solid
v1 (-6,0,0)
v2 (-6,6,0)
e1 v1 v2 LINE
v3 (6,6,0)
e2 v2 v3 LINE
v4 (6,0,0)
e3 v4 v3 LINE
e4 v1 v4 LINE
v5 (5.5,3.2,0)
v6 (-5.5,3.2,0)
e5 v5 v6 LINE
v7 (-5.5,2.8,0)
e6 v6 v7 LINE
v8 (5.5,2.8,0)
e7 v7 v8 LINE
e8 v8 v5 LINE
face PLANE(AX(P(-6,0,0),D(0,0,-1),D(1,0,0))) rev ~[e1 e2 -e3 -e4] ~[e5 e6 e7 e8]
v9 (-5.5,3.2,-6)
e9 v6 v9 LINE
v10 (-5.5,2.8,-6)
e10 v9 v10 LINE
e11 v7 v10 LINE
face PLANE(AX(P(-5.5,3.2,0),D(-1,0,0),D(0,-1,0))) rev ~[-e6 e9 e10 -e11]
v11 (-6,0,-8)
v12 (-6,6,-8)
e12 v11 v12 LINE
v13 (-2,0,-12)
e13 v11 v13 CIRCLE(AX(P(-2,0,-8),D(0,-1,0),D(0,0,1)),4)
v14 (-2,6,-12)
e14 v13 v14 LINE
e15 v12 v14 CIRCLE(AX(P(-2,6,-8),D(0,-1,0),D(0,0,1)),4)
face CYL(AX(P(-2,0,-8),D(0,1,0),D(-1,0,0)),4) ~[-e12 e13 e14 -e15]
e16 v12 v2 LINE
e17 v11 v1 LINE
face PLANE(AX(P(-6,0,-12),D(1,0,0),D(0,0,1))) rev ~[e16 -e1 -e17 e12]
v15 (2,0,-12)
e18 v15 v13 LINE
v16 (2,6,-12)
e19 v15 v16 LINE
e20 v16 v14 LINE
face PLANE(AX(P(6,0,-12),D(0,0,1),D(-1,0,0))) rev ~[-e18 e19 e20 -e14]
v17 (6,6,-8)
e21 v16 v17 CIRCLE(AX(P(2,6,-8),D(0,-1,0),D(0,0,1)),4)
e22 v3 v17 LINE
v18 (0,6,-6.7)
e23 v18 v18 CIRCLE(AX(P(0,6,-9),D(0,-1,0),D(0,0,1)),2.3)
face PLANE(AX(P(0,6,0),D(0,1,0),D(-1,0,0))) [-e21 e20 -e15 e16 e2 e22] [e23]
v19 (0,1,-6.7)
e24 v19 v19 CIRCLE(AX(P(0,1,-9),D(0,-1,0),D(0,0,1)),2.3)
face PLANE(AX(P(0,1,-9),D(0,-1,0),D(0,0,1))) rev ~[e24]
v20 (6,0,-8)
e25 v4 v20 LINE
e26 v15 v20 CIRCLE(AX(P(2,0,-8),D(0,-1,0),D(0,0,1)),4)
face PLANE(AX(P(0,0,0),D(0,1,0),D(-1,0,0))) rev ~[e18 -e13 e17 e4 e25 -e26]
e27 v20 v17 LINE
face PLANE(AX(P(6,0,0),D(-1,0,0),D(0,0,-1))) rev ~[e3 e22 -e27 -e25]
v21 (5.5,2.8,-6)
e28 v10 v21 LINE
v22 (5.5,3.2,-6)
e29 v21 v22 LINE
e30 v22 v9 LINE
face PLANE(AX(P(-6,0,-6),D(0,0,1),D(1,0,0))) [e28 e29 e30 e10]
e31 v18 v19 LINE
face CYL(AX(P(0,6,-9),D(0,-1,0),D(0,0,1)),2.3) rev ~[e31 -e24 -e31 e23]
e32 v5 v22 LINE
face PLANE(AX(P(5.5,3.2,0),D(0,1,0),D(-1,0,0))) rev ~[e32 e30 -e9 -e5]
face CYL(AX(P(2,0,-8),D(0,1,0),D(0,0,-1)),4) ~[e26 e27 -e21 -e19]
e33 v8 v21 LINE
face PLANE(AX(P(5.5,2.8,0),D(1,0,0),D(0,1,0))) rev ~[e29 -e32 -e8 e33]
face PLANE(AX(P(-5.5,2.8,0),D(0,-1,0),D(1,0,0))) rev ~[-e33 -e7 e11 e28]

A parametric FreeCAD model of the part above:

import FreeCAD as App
import Part
import Sketcher

V = App.Vector
Q = App.Units.Quantity


def edges_at(feature, points):
    """Names of the edges that pass closest to the given points."""
    edges = feature.Shape.Edges
    near = lambda p: min(range(len(edges)), key=lambda i: edges[i].distToShape(Part.Vertex(*p))[0])
    return sorted({f"Edge{near(p) + 1}" for p in points})

doc = App.newDocument("Part")
body = doc.addObject("PartDesign::Body", "Body")

# Sketch on XZ plane
sketch1 = doc.addObject("Sketcher::SketchObject", "Sketch")
body.addObject(sketch1)
sketch1.AttachmentSupport = (doc.XZ_Plane, [""])
sketch1.MapMode = "FlatFace"
sketch1.addGeometry([
    Part.LineSegment(V(-6, -12, 0), V(-6, 0, 0)),
    Part.LineSegment(V(-6, 0, 0), V(6, 0, 0)),
    Part.LineSegment(V(6, 0, 0), V(6, -12, 0)),
    Part.LineSegment(V(6, -12, 0), V(-6, -12, 0)),
], False)
sketch1.addConstraint([
    Sketcher.Constraint("Coincident", 0, 2, 1, 1),
    Sketcher.Constraint("Coincident", 1, 2, 2, 1),
    Sketcher.Constraint("Coincident", 2, 2, 3, 1),
    Sketcher.Constraint("Coincident", 3, 2, 0, 1),
    Sketcher.Constraint("Vertical", 0),
    Sketcher.Constraint("Horizontal", 1),
    Sketcher.Constraint("Vertical", 2),
    Sketcher.Constraint("Horizontal", 3),
    Sketcher.Constraint("Symmetric", 0, 2, 1, 2, -1, 1),
    Sketcher.Constraint("Equal", 3, 0),
    Sketcher.Constraint("DistanceX", 1, 1, 1, 2, Q("12 mm")),
])
pad1 = doc.addObject("PartDesign::Pad", "Pad")
body.addObject(pad1)
pad1.Profile = sketch1
pad1.Length = 6
pad1.Reversed = True

# Sketch on XZ plane
sketch2 = doc.addObject("Sketcher::SketchObject", "Sketch001")
body.addObject(sketch2)
sketch2.AttachmentSupport = (doc.XZ_Plane, [""])
sketch2.MapMode = "FlatFace"
sketch2.AttachmentOffset = App.Placement(V(0, 0, -6), App.Rotation())
sketch2.addGeometry(Part.Circle(V(0, -9, 0), V(0, 0, 1), 2.3), False)
sketch2.addConstraint([
    Sketcher.Constraint("PointOnObject", 0, 3, -2),
    Sketcher.Constraint("Diameter", 0, Q("4.6 mm")),
    Sketcher.Constraint("DistanceY", 0, 3, -1, 1, Q("9 mm")),
])
doc.recompute()
hole = doc.addObject("PartDesign::Hole", "Hole")
body.addObject(hole)
hole.Profile = sketch2
hole.ThreadType = "None"
hole.Diameter = 4.6
hole.DepthType = "Dimension"
hole.Depth = 5
hole.DrillPoint = "Flat"
hole.Reversed = True
doc.recompute()

fillet = doc.addObject("PartDesign::Fillet", "Fillet")
body.addObject(fillet)
fillet.Base = (hole, edges_at(hole, [(-6, 3, -12), (6, 3, -12)]))
fillet.Radius = 4

# Sketch on XY plane
sketch3 = doc.addObject("Sketcher::SketchObject", "Sketch002")
body.addObject(sketch3)
sketch3.AttachmentSupport = (doc.XY_Plane, [""])
sketch3.MapMode = "FlatFace"
sketch3.addGeometry([
    Part.LineSegment(V(-5.5, 3.2, 0), V(-5.5, 2.8, 0)),
    Part.LineSegment(V(-5.5, 2.8, 0), V(5.5, 2.8, 0)),
    Part.LineSegment(V(5.5, 2.8, 0), V(5.5, 3.2, 0)),
    Part.LineSegment(V(5.5, 3.2, 0), V(-5.5, 3.2, 0)),
], False)
sketch3.addConstraint([
    Sketcher.Constraint("Coincident", 0, 2, 1, 1),
    Sketcher.Constraint("Coincident", 1, 2, 2, 1),
    Sketcher.Constraint("Coincident", 2, 2, 3, 1),
    Sketcher.Constraint("Coincident", 3, 2, 0, 1),
    Sketcher.Constraint("Vertical", 0),
    Sketcher.Constraint("Horizontal", 1),
    Sketcher.Constraint("Vertical", 2),
    Sketcher.Constraint("Horizontal", 3),
    Sketcher.Constraint("DistanceX", 1, 1, 1, 2, Q("11 mm")),
    Sketcher.Constraint("DistanceY", 0, 2, 0, 1, Q("0.4 mm")),
    Sketcher.Constraint("DistanceX", 0, 2, -1, 1, Q("5.5 mm")),
    Sketcher.Constraint("DistanceY", -1, 1, 0, 2, Q("2.8 mm")),
])
pocket1 = doc.addObject("PartDesign::Pocket", "Pocket")
body.addObject(pocket1)
pocket1.Profile = sketch3
pocket1.Length = 6

doc.recompute()
